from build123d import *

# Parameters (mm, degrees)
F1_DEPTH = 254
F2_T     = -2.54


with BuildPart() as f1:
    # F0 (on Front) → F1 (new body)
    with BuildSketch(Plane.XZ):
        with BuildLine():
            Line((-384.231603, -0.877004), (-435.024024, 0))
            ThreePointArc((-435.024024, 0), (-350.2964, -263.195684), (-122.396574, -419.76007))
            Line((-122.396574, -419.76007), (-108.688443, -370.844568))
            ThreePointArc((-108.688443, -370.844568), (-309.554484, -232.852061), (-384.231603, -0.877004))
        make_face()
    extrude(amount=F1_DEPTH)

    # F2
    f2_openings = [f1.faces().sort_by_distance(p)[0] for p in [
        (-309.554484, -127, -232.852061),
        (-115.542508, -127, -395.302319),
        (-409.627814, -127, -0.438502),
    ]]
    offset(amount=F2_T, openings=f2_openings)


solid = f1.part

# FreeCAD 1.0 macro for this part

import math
import FreeCAD as App
import Part
import Sketcher
Q = App.Units.Quantity


def faces_at(feature, points):
    """Names of the faces that lie closest to the given points."""
    faces = feature.Shape.Faces
    near = lambda p: min(range(len(faces)), key=lambda i: faces[i].distToShape(Part.Vertex(*p))[0])
    return sorted({f"Face{near(p) + 1}" for p in points})

doc = App.newDocument("Part")
body = doc.addObject("PartDesign::Body", "Body")

sketch1 = doc.addObject("Sketcher::SketchObject", "Sketch")
body.addObject(sketch1)
sketch1.AttachmentSupport = (doc.XZ_Plane, [""])
sketch1.MapMode = "FlatFace"
sketch1.addGeometry([
    Part.LineSegment(App.Vector(-384, -1, 0), App.Vector(-435, 0, 0)),
    Part.ArcOfCircle(Part.Circle(App.Vector(-7, -7, 0), App.Vector(0, 0, 1), 428), math.radians(179), math.radians(254)),
    Part.LineSegment(App.Vector(-122, -420, 0), App.Vector(-109, -371, 0)),
    Part.ArcOfCircle(Part.Circle(App.Vector(-7, -7, 0), App.Vector(0, 0, 1), 377), math.radians(179), math.radians(254)),
], False)
sketch1.addConstraint([
    Sketcher.Constraint("Coincident", 0, 2, 1, 1),
    Sketcher.Constraint("Coincident", 1, 2, 2, 1),
    Sketcher.Constraint("Coincident", 2, 2, 3, 2),
    Sketcher.Constraint("Coincident", 3, 1, 0, 1),
    Sketcher.Constraint("Coincident", 3, 3, 1, 3),
    Sketcher.Constraint("PointOnObject", 0, 2, -1),
    Sketcher.Constraint("Radius", 3, 377.45337),
    Sketcher.Constraint("Radius", 1, 428.253362),
    Sketcher.Constraint("DistanceY", 1, 3, -1, 1, 7.393309),
    Sketcher.Constraint("DistanceY", 1, 2, -1, 1, 419.76007),
    Sketcher.Constraint("DistanceY", 2, 2, -1, 1, 370.844568),
    Sketcher.Constraint("DistanceX", 0, 2, 3, 1, 50.792421),
    Sketcher.Constraint("DistanceX", 1, 3, -1, 1, 6.834485),
])
pad1 = doc.addObject("PartDesign::Pad", "Pad")
body.addObject(pad1)
pad1.Profile = sketch1
pad1.Length = Q("10 in")
doc.recompute()

thickness = doc.addObject("PartDesign::Thickness", "Thickness")
body.addObject(thickness)
thickness.Base = (pad1, faces_at(pad1, [(-309.554, -127, -232.852), (-115.543, -127, -395.302), (-409.628, -127, -0.439)]))
thickness.Value = Q("0.1 in")
thickness.Reversed = True
thickness.Join = "Arc"

doc.recompute()
